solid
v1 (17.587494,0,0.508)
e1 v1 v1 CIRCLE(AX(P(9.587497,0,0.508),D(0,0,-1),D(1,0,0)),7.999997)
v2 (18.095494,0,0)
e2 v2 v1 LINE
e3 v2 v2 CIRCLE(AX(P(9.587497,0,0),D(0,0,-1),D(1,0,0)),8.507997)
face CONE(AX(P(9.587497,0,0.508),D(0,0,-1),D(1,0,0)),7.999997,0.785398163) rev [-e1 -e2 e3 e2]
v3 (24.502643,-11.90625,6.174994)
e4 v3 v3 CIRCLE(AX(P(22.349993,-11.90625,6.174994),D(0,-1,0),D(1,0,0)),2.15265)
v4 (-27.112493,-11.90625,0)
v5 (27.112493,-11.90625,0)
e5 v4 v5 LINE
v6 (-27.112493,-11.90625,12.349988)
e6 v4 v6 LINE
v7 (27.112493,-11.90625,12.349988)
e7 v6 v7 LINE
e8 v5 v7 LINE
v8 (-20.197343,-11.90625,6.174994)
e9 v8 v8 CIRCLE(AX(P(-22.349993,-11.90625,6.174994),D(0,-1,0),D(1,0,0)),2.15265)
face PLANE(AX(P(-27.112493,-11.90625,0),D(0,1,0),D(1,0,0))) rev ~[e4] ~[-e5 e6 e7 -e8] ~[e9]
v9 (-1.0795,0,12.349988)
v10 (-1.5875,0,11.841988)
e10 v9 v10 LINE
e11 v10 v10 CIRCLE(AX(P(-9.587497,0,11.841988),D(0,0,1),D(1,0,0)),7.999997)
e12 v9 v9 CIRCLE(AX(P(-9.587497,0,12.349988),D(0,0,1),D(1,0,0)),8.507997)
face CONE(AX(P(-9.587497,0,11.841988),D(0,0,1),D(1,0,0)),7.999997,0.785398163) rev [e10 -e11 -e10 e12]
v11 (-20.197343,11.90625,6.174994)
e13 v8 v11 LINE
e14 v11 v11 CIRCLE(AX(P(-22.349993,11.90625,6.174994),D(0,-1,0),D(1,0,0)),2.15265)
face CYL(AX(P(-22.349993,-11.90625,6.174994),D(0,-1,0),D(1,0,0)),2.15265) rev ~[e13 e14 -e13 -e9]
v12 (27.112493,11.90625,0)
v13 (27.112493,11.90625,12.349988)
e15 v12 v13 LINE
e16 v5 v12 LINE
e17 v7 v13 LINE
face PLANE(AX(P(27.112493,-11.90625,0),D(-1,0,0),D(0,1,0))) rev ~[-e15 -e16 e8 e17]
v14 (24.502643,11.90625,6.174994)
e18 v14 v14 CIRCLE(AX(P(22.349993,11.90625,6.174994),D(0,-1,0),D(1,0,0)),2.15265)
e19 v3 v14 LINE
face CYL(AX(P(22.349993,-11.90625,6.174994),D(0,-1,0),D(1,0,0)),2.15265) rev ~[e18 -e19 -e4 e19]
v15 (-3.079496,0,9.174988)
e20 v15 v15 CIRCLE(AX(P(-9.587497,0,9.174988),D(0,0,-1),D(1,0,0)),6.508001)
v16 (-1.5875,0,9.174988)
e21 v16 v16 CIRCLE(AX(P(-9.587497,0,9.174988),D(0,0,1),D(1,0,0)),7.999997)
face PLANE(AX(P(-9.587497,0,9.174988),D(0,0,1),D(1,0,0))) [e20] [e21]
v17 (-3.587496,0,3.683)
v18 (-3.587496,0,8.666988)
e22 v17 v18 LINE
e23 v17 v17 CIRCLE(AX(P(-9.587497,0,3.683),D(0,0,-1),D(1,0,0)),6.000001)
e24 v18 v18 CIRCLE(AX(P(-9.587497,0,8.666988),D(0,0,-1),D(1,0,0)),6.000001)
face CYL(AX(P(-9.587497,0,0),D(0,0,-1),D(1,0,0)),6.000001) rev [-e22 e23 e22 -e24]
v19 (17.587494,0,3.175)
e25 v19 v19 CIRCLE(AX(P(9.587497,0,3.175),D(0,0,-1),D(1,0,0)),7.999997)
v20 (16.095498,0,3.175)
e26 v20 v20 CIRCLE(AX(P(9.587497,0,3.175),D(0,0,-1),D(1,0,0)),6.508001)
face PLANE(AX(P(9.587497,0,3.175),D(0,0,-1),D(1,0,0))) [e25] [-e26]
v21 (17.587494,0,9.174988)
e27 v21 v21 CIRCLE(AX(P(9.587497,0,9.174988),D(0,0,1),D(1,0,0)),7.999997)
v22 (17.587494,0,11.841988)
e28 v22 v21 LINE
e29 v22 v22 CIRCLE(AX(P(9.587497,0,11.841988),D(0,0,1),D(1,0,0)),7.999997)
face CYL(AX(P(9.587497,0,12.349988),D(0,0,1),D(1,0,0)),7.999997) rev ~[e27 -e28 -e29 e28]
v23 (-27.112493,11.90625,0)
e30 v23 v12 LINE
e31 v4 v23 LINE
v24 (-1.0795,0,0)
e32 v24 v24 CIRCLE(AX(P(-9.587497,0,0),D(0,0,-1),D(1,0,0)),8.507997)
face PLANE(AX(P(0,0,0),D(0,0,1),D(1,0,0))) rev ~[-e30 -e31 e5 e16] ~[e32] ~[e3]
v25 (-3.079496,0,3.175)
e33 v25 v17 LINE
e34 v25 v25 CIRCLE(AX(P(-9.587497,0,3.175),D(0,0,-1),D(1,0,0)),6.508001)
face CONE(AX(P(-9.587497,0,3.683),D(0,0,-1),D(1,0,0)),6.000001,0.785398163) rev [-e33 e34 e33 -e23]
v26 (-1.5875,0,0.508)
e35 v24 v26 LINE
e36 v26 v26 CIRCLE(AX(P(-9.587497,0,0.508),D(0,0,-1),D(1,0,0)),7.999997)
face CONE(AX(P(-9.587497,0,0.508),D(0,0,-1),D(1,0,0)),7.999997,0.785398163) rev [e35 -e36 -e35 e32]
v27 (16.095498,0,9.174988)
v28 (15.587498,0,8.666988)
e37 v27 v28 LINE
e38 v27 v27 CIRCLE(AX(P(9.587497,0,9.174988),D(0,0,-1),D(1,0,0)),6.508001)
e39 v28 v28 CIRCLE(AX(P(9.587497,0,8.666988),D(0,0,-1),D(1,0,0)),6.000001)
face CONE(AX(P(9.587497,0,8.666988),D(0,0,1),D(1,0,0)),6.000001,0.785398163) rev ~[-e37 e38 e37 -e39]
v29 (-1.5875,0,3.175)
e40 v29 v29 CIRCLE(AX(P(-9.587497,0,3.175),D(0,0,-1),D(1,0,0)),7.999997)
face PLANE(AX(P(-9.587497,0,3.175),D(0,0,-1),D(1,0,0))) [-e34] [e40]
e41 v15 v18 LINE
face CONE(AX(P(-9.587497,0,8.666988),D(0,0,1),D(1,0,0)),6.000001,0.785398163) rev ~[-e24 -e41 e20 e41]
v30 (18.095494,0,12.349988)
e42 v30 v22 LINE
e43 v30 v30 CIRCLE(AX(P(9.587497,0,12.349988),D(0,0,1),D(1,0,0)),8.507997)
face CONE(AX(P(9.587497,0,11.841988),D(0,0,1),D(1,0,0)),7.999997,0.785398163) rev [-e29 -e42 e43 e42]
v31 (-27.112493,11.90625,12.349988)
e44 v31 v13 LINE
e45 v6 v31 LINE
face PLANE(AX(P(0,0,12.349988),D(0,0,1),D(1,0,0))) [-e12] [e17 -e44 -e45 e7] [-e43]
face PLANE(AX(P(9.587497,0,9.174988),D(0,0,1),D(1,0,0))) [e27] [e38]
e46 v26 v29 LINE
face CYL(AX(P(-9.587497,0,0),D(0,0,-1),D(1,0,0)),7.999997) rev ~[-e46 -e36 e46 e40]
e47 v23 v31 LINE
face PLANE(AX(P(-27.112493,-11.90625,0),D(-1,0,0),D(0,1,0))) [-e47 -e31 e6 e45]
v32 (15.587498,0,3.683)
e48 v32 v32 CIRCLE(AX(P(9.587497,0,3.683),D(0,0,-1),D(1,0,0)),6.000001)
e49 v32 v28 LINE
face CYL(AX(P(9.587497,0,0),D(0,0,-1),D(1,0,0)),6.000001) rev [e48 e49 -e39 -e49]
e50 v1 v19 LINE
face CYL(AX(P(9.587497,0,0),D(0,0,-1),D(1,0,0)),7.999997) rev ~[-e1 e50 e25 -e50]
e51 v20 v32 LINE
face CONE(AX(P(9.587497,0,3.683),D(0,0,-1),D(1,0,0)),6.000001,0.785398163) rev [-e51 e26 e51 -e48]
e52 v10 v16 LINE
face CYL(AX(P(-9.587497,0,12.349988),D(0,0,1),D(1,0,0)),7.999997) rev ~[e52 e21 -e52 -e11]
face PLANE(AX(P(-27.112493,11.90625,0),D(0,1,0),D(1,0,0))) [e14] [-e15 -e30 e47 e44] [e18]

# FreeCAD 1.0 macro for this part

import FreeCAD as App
import Part
import Sketcher
from FreeCAD import Vector
Q = App.Units.Quantity


def edges_at(feature, points):
    """Names of the edges that pass closest to the given points."""
    edges = feature.Shape.Edges
    near = lambda p: min(range(len(edges)), key=lambda i: edges[i].distToShape(Part.Vertex(*p))[0])
    return sorted({f"Edge{near(p) + 1}" for p in points})

doc = App.newDocument("Part")
body = doc.addObject("PartDesign::Body", "Body")

sketch1 = body.newObject("Sketcher::SketchObject", "Sketch")
sketch1.AttachmentSupport = (doc.getObject("XY_Plane"), [""])
sketch1.MapMode = "FlatFace"
sketch1.addGeometry([
    Part.LineSegment(Vector(-27, 12, 0), Vector(-27, -12, 0)),
    Part.LineSegment(Vector(-27, -12, 0), Vector(27, -12, 0)),
    Part.LineSegment(Vector(27, -12, 0), Vector(27, 12, 0)),
    Part.LineSegment(Vector(27, 12, 0), Vector(-27, 12, 0)),
    Part.Circle(Vector(-10, 0, 0), Vector(0, 0, 1), 6),
    Part.Circle(Vector(10, 0, 0), Vector(0, 0, 1), 6),
], False)
sketch1.addConstraint([
    Sketcher.Constraint("Coincident", 0, 2, 1, 1),
    Sketcher.Constraint("Coincident", 1, 2, 2, 1),
    Sketcher.Constraint("Coincident", 2, 2, 3, 1),
    Sketcher.Constraint("Coincident", 3, 2, 0, 1),
    Sketcher.Constraint("Vertical", 0),
    Sketcher.Constraint("Horizontal", 1),
    Sketcher.Constraint("Vertical", 2),
    Sketcher.Constraint("Horizontal", 3),
    Sketcher.Constraint("Equal", 4, 5),
    Sketcher.Constraint("Symmetric", 4, 3, 5, 3, -1, 1),
    Sketcher.Constraint("Symmetric", 0, 2, 2, 2, -1, 1),
    Sketcher.Constraint("PointOnObject", 4, 3, -1),
    Sketcher.Constraint("DistanceY", 0, 2, 0, 1, Q("0.9375 in")),
    Sketcher.Constraint("Diameter", 4, 12.000002),
    Sketcher.Constraint("DistanceX", 1, 1, 1, 2, 54.224986),
    Sketcher.Constraint("DistanceX", 0, 2, 5, 3, 36.69999),
])
pad1 = body.newObject("PartDesign::Pad", "Pad")
pad1.Profile = sketch1
pad1.Length = 12.349988

sketch2 = body.newObject("Sketcher::SketchObject", "Sketch001")
sketch2.AttachmentSupport = (doc.getObject("XY_Plane"), [""])
sketch2.MapMode = "FlatFace"
sketch2.addGeometry([
    Part.Circle(Vector(10, 0, 0), Vector(0, 0, 1), 8),
    Part.Circle(Vector(-10, 0, 0), Vector(0, 0, 1), 8),
], False)
sketch2.addConstraint([
    Sketcher.Constraint("Equal", 0, 1),
    Sketcher.Constraint("Symmetric", 0, 3, 1, 3, -1, 1),
    Sketcher.Constraint("PointOnObject", 0, 3, -1),
    Sketcher.Constraint("Diameter", 0, 15.999994),
    Sketcher.Constraint("DistanceX", -1, 1, 0, 3, 9.587497),
])
pocket1 = body.newObject("PartDesign::Pocket", "Pocket")
pocket1.Profile = sketch2
pocket1.Length = Q("0.125 in")
pocket1.Reversed = True

sketch3 = body.newObject("Sketcher::SketchObject", "Sketch002")
sketch3.AttachmentSupport = (doc.getObject("XY_Plane"), [""])
sketch3.MapMode = "FlatFace"
sketch3.AttachmentOffset = App.Placement(Vector(0, 0, 12.349988), App.Rotation())
sketch3.addGeometry([
    Part.Circle(Vector(10, 0, 0), Vector(0, 0, 1), 8),
    Part.Circle(Vector(-10, 0, 0), Vector(0, 0, 1), 8),
], False)
sketch3.addConstraint([
    Sketcher.Constraint("Equal", 0, 1),
    Sketcher.Constraint("Symmetric", 0, 3, 1, 3, -1, 1),
    Sketcher.Constraint("PointOnObject", 0, 3, -1),
    Sketcher.Constraint("Diameter", 0, 15.999994),
    Sketcher.Constraint("DistanceX", -1, 1, 0, 3, 9.587497),
])
pocket2 = body.newObject("PartDesign::Pocket", "Pocket001")
pocket2.Profile = sketch3
pocket2.Length = Q("0.125 in")

sketch4 = body.newObject("Sketcher::SketchObject", "Sketch003")
sketch4.AttachmentSupport = (doc.getObject("XZ_Plane"), [""])
sketch4.MapMode = "FlatFace"
sketch4.AttachmentOffset = App.Placement(Vector(0, 0, 0.46875 * 25.4), App.Rotation())
sketch4.addGeometry([
    Part.Circle(Vector(-22.3, 6.2, 0), Vector(0, 0, 1), 2.2),
    Part.Circle(Vector(22.3, 6.2, 0), Vector(0, 0, 1), 2.2),
], False)
sketch4.addConstraint([
    Sketcher.Constraint("Equal", 0, 1),
    Sketcher.Constraint("Symmetric", 0, 3, 1, 3, -2),
    Sketcher.Constraint("Diameter", 0, Q("0.1695 in")),
    Sketcher.Constraint("DistanceX", 0, 3, -1, 1, 22.349993),
    Sketcher.Constraint("DistanceY", -1, 1, 0, 3, 6.174994),
])
pocket3 = body.newObject("PartDesign::Pocket", "Pocket002")
pocket3.Profile = sketch4
pocket3.Type = "ThroughAll"
doc.recompute()

chamfer = body.newObject("PartDesign::Chamfer", "Chamfer")
chamfer.Base = (pocket3, edges_at(pocket3, [
    (1.587, 0, 0),
    (3.587, 0, 3.175),
    (3.587, 0, 9.175),
    (1.587, 0, 12.35),
    (-17.587, 0, 12.35),
    (-17.587, 0, 0),
    (-15.587, 0, 3.175),
    (-15.587, 0, 9.175),
]))
chamfer.Size = Q("0.02 in")

doc.recompute()
